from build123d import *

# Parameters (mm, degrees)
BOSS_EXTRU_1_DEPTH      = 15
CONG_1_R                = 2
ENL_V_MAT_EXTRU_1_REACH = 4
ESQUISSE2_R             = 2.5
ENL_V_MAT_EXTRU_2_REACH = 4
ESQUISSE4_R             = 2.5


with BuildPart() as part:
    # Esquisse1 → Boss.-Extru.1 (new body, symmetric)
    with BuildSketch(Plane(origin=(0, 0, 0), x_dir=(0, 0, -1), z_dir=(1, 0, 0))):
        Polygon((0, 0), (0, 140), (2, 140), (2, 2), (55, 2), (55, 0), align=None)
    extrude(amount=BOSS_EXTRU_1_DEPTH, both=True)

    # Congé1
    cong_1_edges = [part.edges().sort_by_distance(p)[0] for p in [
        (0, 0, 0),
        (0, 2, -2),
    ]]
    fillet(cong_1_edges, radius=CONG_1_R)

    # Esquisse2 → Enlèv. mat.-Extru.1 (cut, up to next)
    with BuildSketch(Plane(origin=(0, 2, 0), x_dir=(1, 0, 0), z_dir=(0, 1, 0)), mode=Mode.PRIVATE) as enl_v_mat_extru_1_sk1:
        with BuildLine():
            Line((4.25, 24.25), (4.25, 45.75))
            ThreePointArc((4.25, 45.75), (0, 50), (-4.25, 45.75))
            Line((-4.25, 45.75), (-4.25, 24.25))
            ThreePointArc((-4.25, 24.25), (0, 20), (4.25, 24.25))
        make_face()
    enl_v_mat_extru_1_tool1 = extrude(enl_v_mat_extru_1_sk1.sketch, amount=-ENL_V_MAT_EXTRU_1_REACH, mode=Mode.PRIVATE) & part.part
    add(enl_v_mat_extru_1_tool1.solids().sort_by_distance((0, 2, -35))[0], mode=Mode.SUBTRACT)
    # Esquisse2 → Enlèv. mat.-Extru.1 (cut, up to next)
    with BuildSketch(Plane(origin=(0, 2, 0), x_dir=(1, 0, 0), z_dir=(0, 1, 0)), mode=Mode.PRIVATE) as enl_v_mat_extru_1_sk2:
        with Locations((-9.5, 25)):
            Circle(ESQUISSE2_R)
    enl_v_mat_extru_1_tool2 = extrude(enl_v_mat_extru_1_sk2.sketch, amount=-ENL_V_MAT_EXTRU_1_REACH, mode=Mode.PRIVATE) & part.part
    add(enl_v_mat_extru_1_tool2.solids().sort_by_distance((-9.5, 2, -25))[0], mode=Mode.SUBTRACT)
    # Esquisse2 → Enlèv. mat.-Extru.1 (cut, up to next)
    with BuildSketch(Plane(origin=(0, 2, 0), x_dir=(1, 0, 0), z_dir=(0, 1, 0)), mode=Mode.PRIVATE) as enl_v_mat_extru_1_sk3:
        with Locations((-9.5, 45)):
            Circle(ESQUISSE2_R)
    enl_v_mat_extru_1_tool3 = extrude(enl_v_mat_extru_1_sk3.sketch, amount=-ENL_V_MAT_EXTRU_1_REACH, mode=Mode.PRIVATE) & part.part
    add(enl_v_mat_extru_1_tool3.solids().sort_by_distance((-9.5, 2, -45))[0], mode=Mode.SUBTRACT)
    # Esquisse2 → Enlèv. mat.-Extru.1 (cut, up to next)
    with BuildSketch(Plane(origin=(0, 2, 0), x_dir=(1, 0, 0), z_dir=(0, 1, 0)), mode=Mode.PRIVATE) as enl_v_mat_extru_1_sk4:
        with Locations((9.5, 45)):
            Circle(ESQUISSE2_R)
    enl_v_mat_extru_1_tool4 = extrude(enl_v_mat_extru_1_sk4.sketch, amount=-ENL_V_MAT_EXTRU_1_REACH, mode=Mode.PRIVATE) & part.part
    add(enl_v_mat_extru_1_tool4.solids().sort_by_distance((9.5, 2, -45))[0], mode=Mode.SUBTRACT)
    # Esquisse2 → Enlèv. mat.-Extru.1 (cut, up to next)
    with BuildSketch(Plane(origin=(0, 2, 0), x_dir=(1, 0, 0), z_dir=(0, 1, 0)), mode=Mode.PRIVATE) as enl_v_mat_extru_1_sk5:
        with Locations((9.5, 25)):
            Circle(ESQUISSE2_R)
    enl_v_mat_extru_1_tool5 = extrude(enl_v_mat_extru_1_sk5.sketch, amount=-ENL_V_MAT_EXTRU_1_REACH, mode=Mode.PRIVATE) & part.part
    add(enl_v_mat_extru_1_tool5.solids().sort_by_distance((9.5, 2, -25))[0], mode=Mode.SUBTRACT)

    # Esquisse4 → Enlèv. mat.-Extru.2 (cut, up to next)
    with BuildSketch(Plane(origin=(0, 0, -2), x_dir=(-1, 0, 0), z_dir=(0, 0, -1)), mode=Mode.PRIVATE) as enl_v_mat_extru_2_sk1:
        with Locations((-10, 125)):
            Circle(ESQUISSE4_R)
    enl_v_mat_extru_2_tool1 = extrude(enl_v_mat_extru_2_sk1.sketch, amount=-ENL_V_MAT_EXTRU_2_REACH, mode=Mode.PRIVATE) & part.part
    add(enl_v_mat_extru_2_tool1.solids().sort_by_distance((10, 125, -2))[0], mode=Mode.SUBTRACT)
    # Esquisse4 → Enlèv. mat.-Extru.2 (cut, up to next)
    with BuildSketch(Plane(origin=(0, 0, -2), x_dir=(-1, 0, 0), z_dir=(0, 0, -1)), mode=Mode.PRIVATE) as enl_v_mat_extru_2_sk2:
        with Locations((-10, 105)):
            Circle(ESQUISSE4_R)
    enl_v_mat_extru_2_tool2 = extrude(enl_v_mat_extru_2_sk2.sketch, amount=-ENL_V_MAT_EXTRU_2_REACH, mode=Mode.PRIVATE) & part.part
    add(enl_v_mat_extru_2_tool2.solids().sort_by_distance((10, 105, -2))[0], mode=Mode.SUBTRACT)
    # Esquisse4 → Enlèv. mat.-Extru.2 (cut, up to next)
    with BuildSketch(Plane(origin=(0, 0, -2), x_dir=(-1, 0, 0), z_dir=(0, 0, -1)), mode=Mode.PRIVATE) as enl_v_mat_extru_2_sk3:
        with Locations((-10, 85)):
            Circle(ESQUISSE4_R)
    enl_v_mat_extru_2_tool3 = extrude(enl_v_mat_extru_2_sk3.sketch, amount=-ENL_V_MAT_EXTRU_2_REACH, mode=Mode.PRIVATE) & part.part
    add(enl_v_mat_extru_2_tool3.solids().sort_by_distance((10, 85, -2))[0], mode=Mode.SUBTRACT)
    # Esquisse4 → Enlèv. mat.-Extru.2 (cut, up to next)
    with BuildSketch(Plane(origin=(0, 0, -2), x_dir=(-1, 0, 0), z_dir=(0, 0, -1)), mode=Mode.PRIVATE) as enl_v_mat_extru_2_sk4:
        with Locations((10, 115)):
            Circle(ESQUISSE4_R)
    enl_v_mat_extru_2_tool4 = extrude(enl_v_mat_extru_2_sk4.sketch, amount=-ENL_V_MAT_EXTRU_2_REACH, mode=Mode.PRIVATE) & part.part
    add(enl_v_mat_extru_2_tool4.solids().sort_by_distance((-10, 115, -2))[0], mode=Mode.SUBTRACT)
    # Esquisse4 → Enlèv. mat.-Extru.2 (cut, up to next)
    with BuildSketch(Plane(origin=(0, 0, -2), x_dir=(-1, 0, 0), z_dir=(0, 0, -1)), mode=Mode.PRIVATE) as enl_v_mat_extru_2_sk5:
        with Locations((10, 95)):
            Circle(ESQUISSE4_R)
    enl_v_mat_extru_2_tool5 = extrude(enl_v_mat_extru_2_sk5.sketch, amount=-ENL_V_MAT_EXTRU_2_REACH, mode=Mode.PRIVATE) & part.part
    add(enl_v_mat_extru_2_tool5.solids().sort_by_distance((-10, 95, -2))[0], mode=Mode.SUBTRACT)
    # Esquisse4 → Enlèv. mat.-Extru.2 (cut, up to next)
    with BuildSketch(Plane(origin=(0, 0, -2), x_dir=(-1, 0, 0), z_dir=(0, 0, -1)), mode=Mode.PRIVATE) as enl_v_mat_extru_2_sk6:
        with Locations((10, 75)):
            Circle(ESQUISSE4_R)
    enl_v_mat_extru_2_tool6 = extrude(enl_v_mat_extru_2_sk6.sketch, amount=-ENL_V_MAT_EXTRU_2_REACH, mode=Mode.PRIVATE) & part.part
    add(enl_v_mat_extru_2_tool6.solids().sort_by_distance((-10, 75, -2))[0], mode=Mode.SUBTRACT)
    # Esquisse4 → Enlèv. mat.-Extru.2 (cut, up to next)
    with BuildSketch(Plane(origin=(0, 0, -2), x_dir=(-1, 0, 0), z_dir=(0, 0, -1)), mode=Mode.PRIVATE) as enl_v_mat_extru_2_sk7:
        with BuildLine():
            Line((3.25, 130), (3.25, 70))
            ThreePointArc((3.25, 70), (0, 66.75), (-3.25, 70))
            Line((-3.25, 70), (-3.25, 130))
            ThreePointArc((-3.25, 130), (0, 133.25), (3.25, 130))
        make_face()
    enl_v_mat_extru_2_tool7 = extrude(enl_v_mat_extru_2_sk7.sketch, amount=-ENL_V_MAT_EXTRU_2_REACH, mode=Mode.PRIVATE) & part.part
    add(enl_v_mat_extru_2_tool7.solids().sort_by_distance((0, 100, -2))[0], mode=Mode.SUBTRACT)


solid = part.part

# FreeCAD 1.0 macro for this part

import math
import FreeCAD as App
import Part
import Sketcher

V = App.Vector
Q = App.Units.Quantity


def edges_at(feature, points):
    """Names of the edges that pass closest to the given points."""
    edges = feature.Shape.Edges
    near = lambda p: min(range(len(edges)), key=lambda i: edges[i].distToShape(Part.Vertex(*p))[0])
    return sorted({f"Edge{near(p) + 1}" for p in points})


def add_polygon(sketch, points):
    """Adds a closed chain of lines whose ends are joined by coincident constraints."""
    first, n = sketch.GeometryCount, len(points)
    for a, b in zip(points, points[1:] + points[:1]):
        sketch.addGeometry(Part.LineSegment(App.Vector(*a, 0), App.Vector(*b, 0)), False)
    for i in range(n):
        sketch.addConstraint(Sketcher.Constraint("Coincident", first + i, 2, first + (i + 1) % n, 1))

doc = App.newDocument("Part")
params = doc.addObject("Spreadsheet::Sheet", "Params")
for row, (alias, value) in enumerate([
    ("sketch1_width", "140 mm"),
    ("sketch1_width2", "2 mm"),
    ("sketch1_height", "55 mm"),
    ("pad1_length", "30 mm"),
    ("fillet_radius", "2 mm"),
    ("sketch2_radius", "4.25 mm"),
    ("sketch2_height", "21.5 mm"),
    ("sketch3_diameter", "5 mm"),
    ("sketch4_diameter", "5 mm"),
    ("sketch5_diameter", "5 mm"),
    ("sketch6_diameter", "5 mm"),
    ("sketch7_diameter", "5 mm"),
    ("sketch8_diameter", "5 mm"),
    ("sketch9_diameter", "5 mm"),
    ("sketch10_diameter", "5 mm"),
    ("sketch11_diameter", "5 mm"),
    ("sketch12_diameter", "5 mm"),
    ("sketch13_height", "60 mm"),
    ("sketch13_radius", "3.25 mm"),
], start=1):
    params.set(f"A{row}", alias)
    params.set(f"B{row}", "=" + value)
    params.setAlias(f"B{row}", alias)

body = doc.addObject("PartDesign::Body", "Body")

# Sketch on YZ plane
sketch1 = body.newObject("Sketcher::SketchObject", "Sketch")
sketch1.AttachmentSupport = (doc.getObject("YZ_Plane"), [""])
sketch1.MapMode = "FlatFace"
add_polygon(sketch1, [(140, 0), (0, 0), (0, -55), (2, -55), (2, -2), (140, -2)])  # lines 0-5
sketch1.addConstraint(Sketcher.Constraint("Horizontal", 0))
sketch1.addConstraint(Sketcher.Constraint("Vertical", 1))
sketch1.addConstraint(Sketcher.Constraint("Horizontal", 2))
sketch1.addConstraint(Sketcher.Constraint("Vertical", 3))
sketch1.addConstraint(Sketcher.Constraint("Horizontal", 4))
sketch1.addConstraint(Sketcher.Constraint("Vertical", 5))
sketch1.addConstraint(Sketcher.Constraint("Coincident", 0, 2, -1, 1))
sketch1.addConstraint(Sketcher.Constraint("Equal", 2, 5))
sketch1.addConstraint(Sketcher.Constraint("DistanceX", 0, 2, 0, 1, Q("140 mm")))
sketch1.addConstraint(Sketcher.Constraint("DistanceX", 2, 1, 2, 2, Q("2 mm")))
sketch1.addConstraint(Sketcher.Constraint("DistanceY", 1, 2, 1, 1, Q("55 mm")))
sketch1.setExpression("Constraints[14]", "Params.sketch1_width")
sketch1.setExpression("Constraints[15]", "Params.sketch1_width2")
sketch1.setExpression("Constraints[16]", "Params.sketch1_height")
pad1 = body.newObject("PartDesign::Pad", "Pad")
pad1.Profile = sketch1
pad1.setExpression("Length", "Params.pad1_length")
pad1.Midplane = True
doc.recompute()

fillet = body.newObject("PartDesign::Fillet", "Fillet")
fillet.Base = (pad1, edges_at(pad1, [(0, 0, 0), (0, 2, -2)]))
fillet.setExpression("Radius", "Params.fillet_radius")

# Sketch on XZ plane
sketch2 = body.newObject("Sketcher::SketchObject", "Sketch001")
sketch2.AttachmentSupport = (doc.getObject("XZ_Plane"), [""])
sketch2.MapMode = "FlatFace"
sketch2.AttachmentOffset = App.Placement(V(0, 0, -2), App.Rotation())
sketch2.addGeometry(Part.LineSegment(V(4.2, -24.2, 0), V(4.2, -45.8, 0)), False)
sketch2.addGeometry(Part.ArcOfCircle(Part.Circle(V(0, -45.8, 0), V(0, 0, 1), 4.2), math.radians(180), math.radians(360)), False)
sketch2.addGeometry(Part.LineSegment(V(-4.2, -45.8, 0), V(-4.2, -24.2, 0)), False)
sketch2.addGeometry(Part.ArcOfCircle(Part.Circle(V(0, -24.2, 0), V(0, 0, 1), 4.2), math.radians(0), math.radians(180)), False)
sketch2.addConstraint(Sketcher.Constraint("Tangent", 0, 2, 1, 2))
sketch2.addConstraint(Sketcher.Constraint("Tangent", 1, 1, 2, 1))
sketch2.addConstraint(Sketcher.Constraint("Tangent", 2, 2, 3, 2))
sketch2.addConstraint(Sketcher.Constraint("Tangent", 3, 1, 0, 1))
sketch2.addConstraint(Sketcher.Constraint("Vertical", 0))
sketch2.addConstraint(Sketcher.Constraint("Vertical", 2))
sketch2.addConstraint(Sketcher.Constraint("PointOnObject", 1, 3, -2))
sketch2.addConstraint(Sketcher.Constraint("Radius", 1, Q("4.25 mm")))
sketch2.addConstraint(Sketcher.Constraint("DistanceY", 0, 2, 0, 1, Q("21.5 mm")))
sketch2.addConstraint(Sketcher.Constraint("DistanceY", 1, 3, -1, 1, Q("45.75 mm")))
sketch2.setExpression("Constraints[7]", "Params.sketch2_radius")
sketch2.setExpression("Constraints[8]", "Params.sketch2_height")
pocket1 = body.newObject("PartDesign::Pocket", "Pocket")
pocket1.Profile = sketch2
pocket1.Type = "UpToFirst"
pocket1.Reversed = True

# Sketch on XZ plane
sketch3 = body.newObject("Sketcher::SketchObject", "Sketch002")
sketch3.AttachmentSupport = (doc.getObject("XZ_Plane"), [""])
sketch3.MapMode = "FlatFace"
sketch3.AttachmentOffset = App.Placement(V(0, 0, -2), App.Rotation())
sketch3.addGeometry(Part.Circle(V(-9.5, -25, 0), V(0, 0, 1), 2.5), False)
sketch3.addConstraint(Sketcher.Constraint("Diameter", 0, Q("5 mm")))
sketch3.addConstraint(Sketcher.Constraint("DistanceY", 0, 3, -1, 1, Q("25 mm")))
sketch3.addConstraint(Sketcher.Constraint("DistanceX", 0, 3, -1, 1, Q("9.5 mm")))
sketch3.setExpression("Constraints[0]", "Params.sketch3_diameter")
pocket2 = body.newObject("PartDesign::Pocket", "Pocket001")
pocket2.Profile = sketch3
pocket2.Type = "UpToFirst"
pocket2.Reversed = True

# Sketch on XZ plane
sketch4 = body.newObject("Sketcher::SketchObject", "Sketch003")
sketch4.AttachmentSupport = (doc.getObject("XZ_Plane"), [""])
sketch4.MapMode = "FlatFace"
sketch4.AttachmentOffset = App.Placement(V(0, 0, -2), App.Rotation())
sketch4.addGeometry(Part.Circle(V(-9.5, -45, 0), V(0, 0, 1), 2.5), False)
sketch4.addConstraint(Sketcher.Constraint("Diameter", 0, Q("5 mm")))
sketch4.addConstraint(Sketcher.Constraint("DistanceY", 0, 3, -1, 1, Q("45 mm")))
sketch4.addConstraint(Sketcher.Constraint("DistanceX", 0, 3, -1, 1, Q("9.5 mm")))
sketch4.setExpression("Constraints[0]", "Params.sketch4_diameter")
pocket3 = body.newObject("PartDesign::Pocket", "Pocket002")
pocket3.Profile = sketch4
pocket3.Type = "UpToFirst"
pocket3.Reversed = True

# Sketch on XZ plane
sketch5 = body.newObject("Sketcher::SketchObject", "Sketch004")
sketch5.AttachmentSupport = (doc.getObject("XZ_Plane"), [""])
sketch5.MapMode = "FlatFace"
sketch5.AttachmentOffset = App.Placement(V(0, 0, -2), App.Rotation())
sketch5.addGeometry(Part.Circle(V(9.5, -45, 0), V(0, 0, 1), 2.5), False)
sketch5.addConstraint(Sketcher.Constraint("Diameter", 0, Q("5 mm")))
sketch5.addConstraint(Sketcher.Constraint("DistanceY", 0, 3, -1, 1, Q("45 mm")))
sketch5.addConstraint(Sketcher.Constraint("DistanceX", -1, 1, 0, 3, Q("9.5 mm")))
sketch5.setExpression("Constraints[0]", "Params.sketch5_diameter")
pocket4 = body.newObject("PartDesign::Pocket", "Pocket003")
pocket4.Profile = sketch5
pocket4.Type = "UpToFirst"
pocket4.Reversed = True

# Sketch on XZ plane
sketch6 = body.newObject("Sketcher::SketchObject", "Sketch005")
sketch6.AttachmentSupport = (doc.getObject("XZ_Plane"), [""])
sketch6.MapMode = "FlatFace"
sketch6.AttachmentOffset = App.Placement(V(0, 0, -2), App.Rotation())
sketch6.addGeometry(Part.Circle(V(9.5, -25, 0), V(0, 0, 1), 2.5), False)
sketch6.addConstraint(Sketcher.Constraint("Diameter", 0, Q("5 mm")))
sketch6.addConstraint(Sketcher.Constraint("DistanceY", 0, 3, -1, 1, Q("25 mm")))
sketch6.addConstraint(Sketcher.Constraint("DistanceX", -1, 1, 0, 3, Q("9.5 mm")))
sketch6.setExpression("Constraints[0]", "Params.sketch6_diameter")
pocket5 = body.newObject("PartDesign::Pocket", "Pocket004")
pocket5.Profile = sketch6
pocket5.Type = "UpToFirst"
pocket5.Reversed = True

# Sketch on XY plane
sketch7 = body.newObject("Sketcher::SketchObject", "Sketch006")
sketch7.AttachmentSupport = (doc.getObject("XY_Plane"), [""])
sketch7.MapMode = "FlatFace"
sketch7.AttachmentOffset = App.Placement(V(0, 0, -2), App.Rotation())
sketch7.addGeometry(Part.Circle(V(10, 125, 0), V(0, 0, 1), 2.5), False)
sketch7.addConstraint(Sketcher.Constraint("Diameter", 0, Q("5 mm")))
sketch7.addConstraint(Sketcher.Constraint("DistanceX", -1, 1, 0, 3, Q("10 mm")))
sketch7.addConstraint(Sketcher.Constraint("DistanceY", -1, 1, 0, 3, Q("125 mm")))
sketch7.setExpression("Constraints[0]", "Params.sketch7_diameter")
pocket6 = body.newObject("PartDesign::Pocket", "Pocket005")
pocket6.Profile = sketch7
pocket6.Type = "UpToFirst"
pocket6.Reversed = True

# Sketch on XY plane
sketch8 = body.newObject("Sketcher::SketchObject", "Sketch007")
sketch8.AttachmentSupport = (doc.getObject("XY_Plane"), [""])
sketch8.MapMode = "FlatFace"
sketch8.AttachmentOffset = App.Placement(V(0, 0, -2), App.Rotation())
sketch8.addGeometry(Part.Circle(V(10, 105, 0), V(0, 0, 1), 2.5), False)
sketch8.addConstraint(Sketcher.Constraint("Diameter", 0, Q("5 mm")))
sketch8.addConstraint(Sketcher.Constraint("DistanceX", -1, 1, 0, 3, Q("10 mm")))
sketch8.addConstraint(Sketcher.Constraint("DistanceY", -1, 1, 0, 3, Q("105 mm")))
sketch8.setExpression("Constraints[0]", "Params.sketch8_diameter")
pocket7 = body.newObject("PartDesign::Pocket", "Pocket006")
pocket7.Profile = sketch8
pocket7.Type = "UpToFirst"
pocket7.Reversed = True

# Sketch on XY plane
sketch9 = body.newObject("Sketcher::SketchObject", "Sketch008")
sketch9.AttachmentSupport = (doc.getObject("XY_Plane"), [""])
sketch9.MapMode = "FlatFace"
sketch9.AttachmentOffset = App.Placement(V(0, 0, -2), App.Rotation())
sketch9.addGeometry(Part.Circle(V(10, 85, 0), V(0, 0, 1), 2.5), False)
sketch9.addConstraint(Sketcher.Constraint("Diameter", 0, Q("5 mm")))
sketch9.addConstraint(Sketcher.Constraint("DistanceX", -1, 1, 0, 3, Q("10 mm")))
sketch9.addConstraint(Sketcher.Constraint("DistanceY", -1, 1, 0, 3, Q("85 mm")))
sketch9.setExpression("Constraints[0]", "Params.sketch9_diameter")
pocket8 = body.newObject("PartDesign::Pocket", "Pocket007")
pocket8.Profile = sketch9
pocket8.Type = "UpToFirst"
pocket8.Reversed = True

# Sketch on XY plane
sketch10 = body.newObject("Sketcher::SketchObject", "Sketch009")
sketch10.AttachmentSupport = (doc.getObject("XY_Plane"), [""])
sketch10.MapMode = "FlatFace"
sketch10.AttachmentOffset = App.Placement(V(0, 0, -2), App.Rotation())
sketch10.addGeometry(Part.Circle(V(-10, 115, 0), V(0, 0, 1), 2.5), False)
sketch10.addConstraint(Sketcher.Constraint("Diameter", 0, Q("5 mm")))
sketch10.addConstraint(Sketcher.Constraint("DistanceX", 0, 3, -1, 1, Q("10 mm")))
sketch10.addConstraint(Sketcher.Constraint("DistanceY", -1, 1, 0, 3, Q("115 mm")))
sketch10.setExpression("Constraints[0]", "Params.sketch10_diameter")
pocket9 = body.newObject("PartDesign::Pocket", "Pocket008")
pocket9.Profile = sketch10
pocket9.Type = "UpToFirst"
pocket9.Reversed = True

# Sketch on XY plane
sketch11 = body.newObject("Sketcher::SketchObject", "Sketch010")
sketch11.AttachmentSupport = (doc.getObject("XY_Plane"), [""])
sketch11.MapMode = "FlatFace"
sketch11.AttachmentOffset = App.Placement(V(0, 0, -2), App.Rotation())
sketch11.addGeometry(Part.Circle(V(-10, 95, 0), V(0, 0, 1), 2.5), False)
sketch11.addConstraint(Sketcher.Constraint("Diameter", 0, Q("5 mm")))
sketch11.addConstraint(Sketcher.Constraint("DistanceX", 0, 3, -1, 1, Q("10 mm")))
sketch11.addConstraint(Sketcher.Constraint("DistanceY", -1, 1, 0, 3, Q("95 mm")))
sketch11.setExpression("Constraints[0]", "Params.sketch11_diameter")
pocket10 = body.newObject("PartDesign::Pocket", "Pocket009")
pocket10.Profile = sketch11
pocket10.Type = "UpToFirst"
pocket10.Reversed = True

# Sketch on XY plane
sketch12 = body.newObject("Sketcher::SketchObject", "Sketch011")
sketch12.AttachmentSupport = (doc.getObject("XY_Plane"), [""])
sketch12.MapMode = "FlatFace"
sketch12.AttachmentOffset = App.Placement(V(0, 0, -2), App.Rotation())
sketch12.addGeometry(Part.Circle(V(-10, 75, 0), V(0, 0, 1), 2.5), False)
sketch12.addConstraint(Sketcher.Constraint("Diameter", 0, Q("5 mm")))
sketch12.addConstraint(Sketcher.Constraint("DistanceX", 0, 3, -1, 1, Q("10 mm")))
sketch12.addConstraint(Sketcher.Constraint("DistanceY", -1, 1, 0, 3, Q("75 mm")))
sketch12.setExpression("Constraints[0]", "Params.sketch12_diameter")
pocket11 = body.newObject("PartDesign::Pocket", "Pocket010")
pocket11.Profile = sketch12
pocket11.Type = "UpToFirst"
pocket11.Reversed = True

# Sketch on XY plane
sketch13 = body.newObject("Sketcher::SketchObject", "Sketch012")
sketch13.AttachmentSupport = (doc.getObject("XY_Plane"), [""])
sketch13.MapMode = "FlatFace"
sketch13.AttachmentOffset = App.Placement(V(0, 0, -2), App.Rotation())
sketch13.addGeometry(Part.LineSegment(V(-3.2, 70, 0), V(-3.2, 130, 0)), False)
sketch13.addGeometry(Part.ArcOfCircle(Part.Circle(V(0, 130, 0), V(0, 0, 1), 3.2), math.radians(0), math.radians(180)), False)
sketch13.addGeometry(Part.LineSegment(V(3.2, 130, 0), V(3.2, 70, 0)), False)
sketch13.addGeometry(Part.ArcOfCircle(Part.Circle(V(0, 70, 0), V(0, 0, 1), 3.2), math.radians(180), math.radians(360)), False)
sketch13.addConstraint(Sketcher.Constraint("Tangent", 0, 2, 1, 2))
sketch13.addConstraint(Sketcher.Constraint("Tangent", 1, 1, 2, 1))
sketch13.addConstraint(Sketcher.Constraint("Tangent", 2, 2, 3, 2))
sketch13.addConstraint(Sketcher.Constraint("Tangent", 3, 1, 0, 1))
sketch13.addConstraint(Sketcher.Constraint("Vertical", 0))
sketch13.addConstraint(Sketcher.Constraint("Vertical", 2))
sketch13.addConstraint(Sketcher.Constraint("PointOnObject", 1, 3, -2))
sketch13.addConstraint(Sketcher.Constraint("DistanceY", 0, 1, 0, 2, Q("60 mm")))
sketch13.addConstraint(Sketcher.Constraint("Radius", 1, Q("3.25 mm")))
sketch13.addConstraint(Sketcher.Constraint("DistanceY", -1, 1, 1, 3, Q("130 mm")))
sketch13.setExpression("Constraints[7]", "Params.sketch13_height")
sketch13.setExpression("Constraints[8]", "Params.sketch13_radius")
pocket12 = body.newObject("PartDesign::Pocket", "Pocket011")
pocket12.Profile = sketch13
pocket12.Type = "UpToFirst"
pocket12.Reversed = True

doc.recompute()
